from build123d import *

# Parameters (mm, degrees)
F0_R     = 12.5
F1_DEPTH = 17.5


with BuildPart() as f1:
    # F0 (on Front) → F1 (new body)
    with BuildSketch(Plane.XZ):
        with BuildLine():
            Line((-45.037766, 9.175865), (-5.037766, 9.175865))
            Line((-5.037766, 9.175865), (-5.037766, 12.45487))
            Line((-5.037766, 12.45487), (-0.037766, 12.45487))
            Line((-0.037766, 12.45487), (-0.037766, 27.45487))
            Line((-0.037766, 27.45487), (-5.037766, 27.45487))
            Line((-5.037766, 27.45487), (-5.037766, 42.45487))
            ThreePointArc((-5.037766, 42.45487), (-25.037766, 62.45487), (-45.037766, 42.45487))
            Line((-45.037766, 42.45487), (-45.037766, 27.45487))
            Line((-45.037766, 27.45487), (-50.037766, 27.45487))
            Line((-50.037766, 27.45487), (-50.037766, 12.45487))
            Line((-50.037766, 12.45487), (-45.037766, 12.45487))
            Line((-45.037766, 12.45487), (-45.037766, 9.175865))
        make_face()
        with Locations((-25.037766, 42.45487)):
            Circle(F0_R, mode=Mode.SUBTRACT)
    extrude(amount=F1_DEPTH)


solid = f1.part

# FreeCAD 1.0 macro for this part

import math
import FreeCAD as App
import Part
import Sketcher
from FreeCAD import Vector
Q = App.Units.Quantity

doc = App.newDocument("Part")
params = doc.addObject("Spreadsheet::Sheet", "Params")
for row, (alias, value) in enumerate([
    ("sketch1_diameter", "25 mm"),
    ("sketch1_radius", "20 mm"),
    ("sketch1_width", "5 mm"),
    ("sketch1_height", "15 mm"),
    ("pad1_length", "17.5 mm"),
], start=1):
    params.set(f"A{row}", alias)
    params.set(f"B{row}", "=" + value)
    params.setAlias(f"B{row}", alias)

body = doc.addObject("PartDesign::Body", "Body")

# Sketch on XZ plane
sketch1 = body.newObject("Sketcher::SketchObject", "Sketch")
sketch1.AttachmentSupport = (doc.getObject("XZ_Plane"), [""])
sketch1.MapMode = "FlatFace"
sketch1.addGeometry([
    Part.LineSegment(Vector(-45, 9.2, 0), Vector(-5, 9.2, 0)),  # 0
    Part.LineSegment(Vector(-5, 9.2, 0), Vector(-5, 12.5, 0)),  # 1
    Part.LineSegment(Vector(-5, 12.5, 0), Vector(0, 12.5, 0)),  # 2
    Part.LineSegment(Vector(0, 12.5, 0), Vector(0, 27.5, 0)),  # 3
    Part.LineSegment(Vector(0, 27.5, 0), Vector(-5, 27.5, 0)),  # 4
    Part.LineSegment(Vector(-5, 27.5, 0), Vector(-5, 42.5, 0)),  # 5
    Part.ArcOfCircle(Part.Circle(Vector(-25, 42.5, 0), Vector(0, 0, 1), 20), math.radians(0), math.radians(180)),  # 6
    Part.LineSegment(Vector(-45, 42.5, 0), Vector(-45, 27.5, 0)),  # 7
    Part.LineSegment(Vector(-45, 27.5, 0), Vector(-50, 27.5, 0)),  # 8
    Part.LineSegment(Vector(-50, 27.5, 0), Vector(-50, 12.5, 0)),  # 9
    Part.LineSegment(Vector(-50, 12.5, 0), Vector(-45, 12.5, 0)),  # 10
    Part.LineSegment(Vector(-45, 12.5, 0), Vector(-45, 9.2, 0)),  # 11
    Part.Circle(Vector(-25, 42.5, 0), Vector(0, 0, 1), 12.5),  # 12
], False)
sketch1.addConstraint([
    Sketcher.Constraint("Coincident", 0, 2, 1, 1),
    Sketcher.Constraint("Coincident", 1, 2, 2, 1),
    Sketcher.Constraint("Coincident", 2, 2, 3, 1),
    Sketcher.Constraint("Coincident", 3, 2, 4, 1),
    Sketcher.Constraint("Coincident", 4, 2, 5, 1),
    Sketcher.Constraint("Tangent", 5, 2, 6, 1),
    Sketcher.Constraint("Tangent", 6, 2, 7, 1),
    Sketcher.Constraint("Coincident", 7, 2, 8, 1),
    Sketcher.Constraint("Coincident", 8, 2, 9, 1),
    Sketcher.Constraint("Coincident", 9, 2, 10, 1),
    Sketcher.Constraint("Coincident", 10, 2, 11, 1),
    Sketcher.Constraint("Coincident", 11, 2, 0, 1),
    Sketcher.Constraint("Horizontal", 0),
    Sketcher.Constraint("Vertical", 1),
    Sketcher.Constraint("Horizontal", 2),
    Sketcher.Constraint("Vertical", 3),
    Sketcher.Constraint("Horizontal", 4),
    Sketcher.Constraint("Vertical", 5),
    Sketcher.Constraint("Vertical", 7),
    Sketcher.Constraint("Horizontal", 8),
    Sketcher.Constraint("Vertical", 9),
    Sketcher.Constraint("Horizontal", 10),
    Sketcher.Constraint("Vertical", 11),
    Sketcher.Constraint("Coincident", 12, 3, 6, 3),
    Sketcher.Constraint("Horizontal", 4, 2, 7, 2),
    Sketcher.Constraint("Horizontal", 2, 2, 9, 2),
    Sketcher.Constraint("Vertical", 1, 2, 4, 2),
    Sketcher.Constraint("Vertical", 7, 2, 10, 2),
    Sketcher.Constraint("Equal", 4, 8),
    Sketcher.Constraint("Equal", 3, 5),
    Sketcher.Constraint("Diameter", 12, Q("25 mm")),
    Sketcher.Constraint("Radius", 6, Q("20 mm")),
    Sketcher.Constraint("DistanceX", 2, 1, 2, 2, Q("5 mm")),
    Sketcher.Constraint("DistanceY", 3, 1, 3, 2, Q("15 mm")),
    Sketcher.Constraint("DistanceY", 1, 1, 1, 2, Q("3.279005 mm")),
    Sketcher.Constraint("DistanceY", -1, 1, 6, 3, Q("42.45487 mm")),
    Sketcher.Constraint("DistanceX", 6, 3, -1, 1, Q("25.037766 mm")),
])
sketch1.setExpression("Constraints[30]", "Params.sketch1_diameter")
sketch1.setExpression("Constraints[31]", "Params.sketch1_radius")
sketch1.setExpression("Constraints[32]", "Params.sketch1_width")
sketch1.setExpression("Constraints[33]", "Params.sketch1_height")
pad1 = body.newObject("PartDesign::Pad", "Pad")
pad1.Profile = sketch1
pad1.setExpression("Length", "Params.pad1_length")

doc.recompute()
